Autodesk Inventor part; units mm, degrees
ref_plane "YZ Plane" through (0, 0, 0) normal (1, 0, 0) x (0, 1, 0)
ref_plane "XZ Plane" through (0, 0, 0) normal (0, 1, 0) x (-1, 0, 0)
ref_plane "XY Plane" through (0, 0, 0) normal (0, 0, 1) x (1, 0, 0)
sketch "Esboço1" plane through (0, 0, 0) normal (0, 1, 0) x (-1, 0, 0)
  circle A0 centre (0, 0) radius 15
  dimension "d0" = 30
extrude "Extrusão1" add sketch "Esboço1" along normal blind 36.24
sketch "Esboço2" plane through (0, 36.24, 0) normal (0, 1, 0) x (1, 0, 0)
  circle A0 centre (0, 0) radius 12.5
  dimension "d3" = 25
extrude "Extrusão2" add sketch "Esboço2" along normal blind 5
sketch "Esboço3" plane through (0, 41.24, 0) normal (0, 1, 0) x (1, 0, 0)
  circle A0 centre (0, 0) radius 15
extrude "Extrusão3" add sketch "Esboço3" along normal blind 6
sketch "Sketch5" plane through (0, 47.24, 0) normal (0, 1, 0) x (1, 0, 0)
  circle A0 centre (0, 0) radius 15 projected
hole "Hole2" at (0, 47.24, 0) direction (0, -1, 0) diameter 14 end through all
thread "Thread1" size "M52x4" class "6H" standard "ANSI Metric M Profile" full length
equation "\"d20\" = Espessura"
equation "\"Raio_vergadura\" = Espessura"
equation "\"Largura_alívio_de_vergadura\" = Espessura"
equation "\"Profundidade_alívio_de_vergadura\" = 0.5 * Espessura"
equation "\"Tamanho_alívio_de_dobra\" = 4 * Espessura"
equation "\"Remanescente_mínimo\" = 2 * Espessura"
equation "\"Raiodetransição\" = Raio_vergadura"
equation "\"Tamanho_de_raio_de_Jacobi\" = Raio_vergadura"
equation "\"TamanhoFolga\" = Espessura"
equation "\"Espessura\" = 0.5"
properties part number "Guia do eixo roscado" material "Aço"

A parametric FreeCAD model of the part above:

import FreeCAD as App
import Part
import Sketcher
from FreeCAD import Vector

doc = App.newDocument("Part")
body = doc.addObject("PartDesign::Body", "Body")

# Sketch on XZ plane
sketch1 = body.newObject("Sketcher::SketchObject", "Sketch")
sketch1.AttachmentSupport = (doc.getObject("XZ_Plane"), [""])
sketch1.MapMode = "FlatFace"
sketch1.addGeometry(Part.Circle(Vector(0, 0, 0), Vector(0, 0, 1), 15), False)
sketch1.addConstraint(Sketcher.Constraint("Coincident", 0, 3, -1, 1))
sketch1.addConstraint(Sketcher.Constraint("Diameter", 0, 30.0))
pad1 = body.newObject("PartDesign::Pad", "Pad")
pad1.Profile = sketch1
pad1.Length = 36.24
pad1.Reversed = True

# Sketch on XZ plane
sketch2 = body.newObject("Sketcher::SketchObject", "Sketch001")
sketch2.AttachmentSupport = (doc.getObject("XZ_Plane"), [""])
sketch2.MapMode = "FlatFace"
sketch2.AttachmentOffset = App.Placement(Vector(0, 0, -36.24), App.Rotation())
sketch2.addGeometry(Part.Circle(Vector(0, 0, 0), Vector(0, 0, 1), 12), False)
sketch2.addConstraint(Sketcher.Constraint("Coincident", 0, 3, -1, 1))
sketch2.addConstraint(Sketcher.Constraint("Diameter", 0, 25.0))
pad2 = body.newObject("PartDesign::Pad", "Pad001")
pad2.Profile = sketch2
pad2.Length = 5
pad2.Reversed = True

# Sketch on XZ plane
sketch3 = body.newObject("Sketcher::SketchObject", "Sketch002")
sketch3.AttachmentSupport = (doc.getObject("XZ_Plane"), [""])
sketch3.MapMode = "FlatFace"
sketch3.AttachmentOffset = App.Placement(Vector(0, 0, -41.24), App.Rotation())
sketch3.addGeometry(Part.Circle(Vector(0, 0, 0), Vector(0, 0, 1), 15), False)
sketch3.addConstraint(Sketcher.Constraint("Coincident", 0, 3, -1, 1))
sketch3.addConstraint(Sketcher.Constraint("Diameter", 0, 30.0))
pad3 = body.newObject("PartDesign::Pad", "Pad002")
pad3.Profile = sketch3
pad3.Length = 6
pad3.Reversed = True

# Sketch on XZ plane
sketch4 = body.newObject("Sketcher::SketchObject", "Sketch003")
sketch4.AttachmentSupport = (doc.getObject("XZ_Plane"), [""])
sketch4.MapMode = "FlatFace"
sketch4.AttachmentOffset = App.Placement(Vector(0, 0, -47.24), App.Rotation())
sketch4.addGeometry(Part.Circle(Vector(0, 0, 0), Vector(0, 0, 1), 7), False)
sketch4.addConstraint(Sketcher.Constraint("Coincident", 0, 3, -1, 1))
sketch4.addConstraint(Sketcher.Constraint("Diameter", 0, 14.0))
doc.recompute()
hole = body.newObject("PartDesign::Hole", "Hole")
hole.Profile = sketch4
hole.ThreadType = "None"
hole.Diameter = 14
hole.DepthType = "ThroughAll"
hole.Reversed = True

doc.recompute()
